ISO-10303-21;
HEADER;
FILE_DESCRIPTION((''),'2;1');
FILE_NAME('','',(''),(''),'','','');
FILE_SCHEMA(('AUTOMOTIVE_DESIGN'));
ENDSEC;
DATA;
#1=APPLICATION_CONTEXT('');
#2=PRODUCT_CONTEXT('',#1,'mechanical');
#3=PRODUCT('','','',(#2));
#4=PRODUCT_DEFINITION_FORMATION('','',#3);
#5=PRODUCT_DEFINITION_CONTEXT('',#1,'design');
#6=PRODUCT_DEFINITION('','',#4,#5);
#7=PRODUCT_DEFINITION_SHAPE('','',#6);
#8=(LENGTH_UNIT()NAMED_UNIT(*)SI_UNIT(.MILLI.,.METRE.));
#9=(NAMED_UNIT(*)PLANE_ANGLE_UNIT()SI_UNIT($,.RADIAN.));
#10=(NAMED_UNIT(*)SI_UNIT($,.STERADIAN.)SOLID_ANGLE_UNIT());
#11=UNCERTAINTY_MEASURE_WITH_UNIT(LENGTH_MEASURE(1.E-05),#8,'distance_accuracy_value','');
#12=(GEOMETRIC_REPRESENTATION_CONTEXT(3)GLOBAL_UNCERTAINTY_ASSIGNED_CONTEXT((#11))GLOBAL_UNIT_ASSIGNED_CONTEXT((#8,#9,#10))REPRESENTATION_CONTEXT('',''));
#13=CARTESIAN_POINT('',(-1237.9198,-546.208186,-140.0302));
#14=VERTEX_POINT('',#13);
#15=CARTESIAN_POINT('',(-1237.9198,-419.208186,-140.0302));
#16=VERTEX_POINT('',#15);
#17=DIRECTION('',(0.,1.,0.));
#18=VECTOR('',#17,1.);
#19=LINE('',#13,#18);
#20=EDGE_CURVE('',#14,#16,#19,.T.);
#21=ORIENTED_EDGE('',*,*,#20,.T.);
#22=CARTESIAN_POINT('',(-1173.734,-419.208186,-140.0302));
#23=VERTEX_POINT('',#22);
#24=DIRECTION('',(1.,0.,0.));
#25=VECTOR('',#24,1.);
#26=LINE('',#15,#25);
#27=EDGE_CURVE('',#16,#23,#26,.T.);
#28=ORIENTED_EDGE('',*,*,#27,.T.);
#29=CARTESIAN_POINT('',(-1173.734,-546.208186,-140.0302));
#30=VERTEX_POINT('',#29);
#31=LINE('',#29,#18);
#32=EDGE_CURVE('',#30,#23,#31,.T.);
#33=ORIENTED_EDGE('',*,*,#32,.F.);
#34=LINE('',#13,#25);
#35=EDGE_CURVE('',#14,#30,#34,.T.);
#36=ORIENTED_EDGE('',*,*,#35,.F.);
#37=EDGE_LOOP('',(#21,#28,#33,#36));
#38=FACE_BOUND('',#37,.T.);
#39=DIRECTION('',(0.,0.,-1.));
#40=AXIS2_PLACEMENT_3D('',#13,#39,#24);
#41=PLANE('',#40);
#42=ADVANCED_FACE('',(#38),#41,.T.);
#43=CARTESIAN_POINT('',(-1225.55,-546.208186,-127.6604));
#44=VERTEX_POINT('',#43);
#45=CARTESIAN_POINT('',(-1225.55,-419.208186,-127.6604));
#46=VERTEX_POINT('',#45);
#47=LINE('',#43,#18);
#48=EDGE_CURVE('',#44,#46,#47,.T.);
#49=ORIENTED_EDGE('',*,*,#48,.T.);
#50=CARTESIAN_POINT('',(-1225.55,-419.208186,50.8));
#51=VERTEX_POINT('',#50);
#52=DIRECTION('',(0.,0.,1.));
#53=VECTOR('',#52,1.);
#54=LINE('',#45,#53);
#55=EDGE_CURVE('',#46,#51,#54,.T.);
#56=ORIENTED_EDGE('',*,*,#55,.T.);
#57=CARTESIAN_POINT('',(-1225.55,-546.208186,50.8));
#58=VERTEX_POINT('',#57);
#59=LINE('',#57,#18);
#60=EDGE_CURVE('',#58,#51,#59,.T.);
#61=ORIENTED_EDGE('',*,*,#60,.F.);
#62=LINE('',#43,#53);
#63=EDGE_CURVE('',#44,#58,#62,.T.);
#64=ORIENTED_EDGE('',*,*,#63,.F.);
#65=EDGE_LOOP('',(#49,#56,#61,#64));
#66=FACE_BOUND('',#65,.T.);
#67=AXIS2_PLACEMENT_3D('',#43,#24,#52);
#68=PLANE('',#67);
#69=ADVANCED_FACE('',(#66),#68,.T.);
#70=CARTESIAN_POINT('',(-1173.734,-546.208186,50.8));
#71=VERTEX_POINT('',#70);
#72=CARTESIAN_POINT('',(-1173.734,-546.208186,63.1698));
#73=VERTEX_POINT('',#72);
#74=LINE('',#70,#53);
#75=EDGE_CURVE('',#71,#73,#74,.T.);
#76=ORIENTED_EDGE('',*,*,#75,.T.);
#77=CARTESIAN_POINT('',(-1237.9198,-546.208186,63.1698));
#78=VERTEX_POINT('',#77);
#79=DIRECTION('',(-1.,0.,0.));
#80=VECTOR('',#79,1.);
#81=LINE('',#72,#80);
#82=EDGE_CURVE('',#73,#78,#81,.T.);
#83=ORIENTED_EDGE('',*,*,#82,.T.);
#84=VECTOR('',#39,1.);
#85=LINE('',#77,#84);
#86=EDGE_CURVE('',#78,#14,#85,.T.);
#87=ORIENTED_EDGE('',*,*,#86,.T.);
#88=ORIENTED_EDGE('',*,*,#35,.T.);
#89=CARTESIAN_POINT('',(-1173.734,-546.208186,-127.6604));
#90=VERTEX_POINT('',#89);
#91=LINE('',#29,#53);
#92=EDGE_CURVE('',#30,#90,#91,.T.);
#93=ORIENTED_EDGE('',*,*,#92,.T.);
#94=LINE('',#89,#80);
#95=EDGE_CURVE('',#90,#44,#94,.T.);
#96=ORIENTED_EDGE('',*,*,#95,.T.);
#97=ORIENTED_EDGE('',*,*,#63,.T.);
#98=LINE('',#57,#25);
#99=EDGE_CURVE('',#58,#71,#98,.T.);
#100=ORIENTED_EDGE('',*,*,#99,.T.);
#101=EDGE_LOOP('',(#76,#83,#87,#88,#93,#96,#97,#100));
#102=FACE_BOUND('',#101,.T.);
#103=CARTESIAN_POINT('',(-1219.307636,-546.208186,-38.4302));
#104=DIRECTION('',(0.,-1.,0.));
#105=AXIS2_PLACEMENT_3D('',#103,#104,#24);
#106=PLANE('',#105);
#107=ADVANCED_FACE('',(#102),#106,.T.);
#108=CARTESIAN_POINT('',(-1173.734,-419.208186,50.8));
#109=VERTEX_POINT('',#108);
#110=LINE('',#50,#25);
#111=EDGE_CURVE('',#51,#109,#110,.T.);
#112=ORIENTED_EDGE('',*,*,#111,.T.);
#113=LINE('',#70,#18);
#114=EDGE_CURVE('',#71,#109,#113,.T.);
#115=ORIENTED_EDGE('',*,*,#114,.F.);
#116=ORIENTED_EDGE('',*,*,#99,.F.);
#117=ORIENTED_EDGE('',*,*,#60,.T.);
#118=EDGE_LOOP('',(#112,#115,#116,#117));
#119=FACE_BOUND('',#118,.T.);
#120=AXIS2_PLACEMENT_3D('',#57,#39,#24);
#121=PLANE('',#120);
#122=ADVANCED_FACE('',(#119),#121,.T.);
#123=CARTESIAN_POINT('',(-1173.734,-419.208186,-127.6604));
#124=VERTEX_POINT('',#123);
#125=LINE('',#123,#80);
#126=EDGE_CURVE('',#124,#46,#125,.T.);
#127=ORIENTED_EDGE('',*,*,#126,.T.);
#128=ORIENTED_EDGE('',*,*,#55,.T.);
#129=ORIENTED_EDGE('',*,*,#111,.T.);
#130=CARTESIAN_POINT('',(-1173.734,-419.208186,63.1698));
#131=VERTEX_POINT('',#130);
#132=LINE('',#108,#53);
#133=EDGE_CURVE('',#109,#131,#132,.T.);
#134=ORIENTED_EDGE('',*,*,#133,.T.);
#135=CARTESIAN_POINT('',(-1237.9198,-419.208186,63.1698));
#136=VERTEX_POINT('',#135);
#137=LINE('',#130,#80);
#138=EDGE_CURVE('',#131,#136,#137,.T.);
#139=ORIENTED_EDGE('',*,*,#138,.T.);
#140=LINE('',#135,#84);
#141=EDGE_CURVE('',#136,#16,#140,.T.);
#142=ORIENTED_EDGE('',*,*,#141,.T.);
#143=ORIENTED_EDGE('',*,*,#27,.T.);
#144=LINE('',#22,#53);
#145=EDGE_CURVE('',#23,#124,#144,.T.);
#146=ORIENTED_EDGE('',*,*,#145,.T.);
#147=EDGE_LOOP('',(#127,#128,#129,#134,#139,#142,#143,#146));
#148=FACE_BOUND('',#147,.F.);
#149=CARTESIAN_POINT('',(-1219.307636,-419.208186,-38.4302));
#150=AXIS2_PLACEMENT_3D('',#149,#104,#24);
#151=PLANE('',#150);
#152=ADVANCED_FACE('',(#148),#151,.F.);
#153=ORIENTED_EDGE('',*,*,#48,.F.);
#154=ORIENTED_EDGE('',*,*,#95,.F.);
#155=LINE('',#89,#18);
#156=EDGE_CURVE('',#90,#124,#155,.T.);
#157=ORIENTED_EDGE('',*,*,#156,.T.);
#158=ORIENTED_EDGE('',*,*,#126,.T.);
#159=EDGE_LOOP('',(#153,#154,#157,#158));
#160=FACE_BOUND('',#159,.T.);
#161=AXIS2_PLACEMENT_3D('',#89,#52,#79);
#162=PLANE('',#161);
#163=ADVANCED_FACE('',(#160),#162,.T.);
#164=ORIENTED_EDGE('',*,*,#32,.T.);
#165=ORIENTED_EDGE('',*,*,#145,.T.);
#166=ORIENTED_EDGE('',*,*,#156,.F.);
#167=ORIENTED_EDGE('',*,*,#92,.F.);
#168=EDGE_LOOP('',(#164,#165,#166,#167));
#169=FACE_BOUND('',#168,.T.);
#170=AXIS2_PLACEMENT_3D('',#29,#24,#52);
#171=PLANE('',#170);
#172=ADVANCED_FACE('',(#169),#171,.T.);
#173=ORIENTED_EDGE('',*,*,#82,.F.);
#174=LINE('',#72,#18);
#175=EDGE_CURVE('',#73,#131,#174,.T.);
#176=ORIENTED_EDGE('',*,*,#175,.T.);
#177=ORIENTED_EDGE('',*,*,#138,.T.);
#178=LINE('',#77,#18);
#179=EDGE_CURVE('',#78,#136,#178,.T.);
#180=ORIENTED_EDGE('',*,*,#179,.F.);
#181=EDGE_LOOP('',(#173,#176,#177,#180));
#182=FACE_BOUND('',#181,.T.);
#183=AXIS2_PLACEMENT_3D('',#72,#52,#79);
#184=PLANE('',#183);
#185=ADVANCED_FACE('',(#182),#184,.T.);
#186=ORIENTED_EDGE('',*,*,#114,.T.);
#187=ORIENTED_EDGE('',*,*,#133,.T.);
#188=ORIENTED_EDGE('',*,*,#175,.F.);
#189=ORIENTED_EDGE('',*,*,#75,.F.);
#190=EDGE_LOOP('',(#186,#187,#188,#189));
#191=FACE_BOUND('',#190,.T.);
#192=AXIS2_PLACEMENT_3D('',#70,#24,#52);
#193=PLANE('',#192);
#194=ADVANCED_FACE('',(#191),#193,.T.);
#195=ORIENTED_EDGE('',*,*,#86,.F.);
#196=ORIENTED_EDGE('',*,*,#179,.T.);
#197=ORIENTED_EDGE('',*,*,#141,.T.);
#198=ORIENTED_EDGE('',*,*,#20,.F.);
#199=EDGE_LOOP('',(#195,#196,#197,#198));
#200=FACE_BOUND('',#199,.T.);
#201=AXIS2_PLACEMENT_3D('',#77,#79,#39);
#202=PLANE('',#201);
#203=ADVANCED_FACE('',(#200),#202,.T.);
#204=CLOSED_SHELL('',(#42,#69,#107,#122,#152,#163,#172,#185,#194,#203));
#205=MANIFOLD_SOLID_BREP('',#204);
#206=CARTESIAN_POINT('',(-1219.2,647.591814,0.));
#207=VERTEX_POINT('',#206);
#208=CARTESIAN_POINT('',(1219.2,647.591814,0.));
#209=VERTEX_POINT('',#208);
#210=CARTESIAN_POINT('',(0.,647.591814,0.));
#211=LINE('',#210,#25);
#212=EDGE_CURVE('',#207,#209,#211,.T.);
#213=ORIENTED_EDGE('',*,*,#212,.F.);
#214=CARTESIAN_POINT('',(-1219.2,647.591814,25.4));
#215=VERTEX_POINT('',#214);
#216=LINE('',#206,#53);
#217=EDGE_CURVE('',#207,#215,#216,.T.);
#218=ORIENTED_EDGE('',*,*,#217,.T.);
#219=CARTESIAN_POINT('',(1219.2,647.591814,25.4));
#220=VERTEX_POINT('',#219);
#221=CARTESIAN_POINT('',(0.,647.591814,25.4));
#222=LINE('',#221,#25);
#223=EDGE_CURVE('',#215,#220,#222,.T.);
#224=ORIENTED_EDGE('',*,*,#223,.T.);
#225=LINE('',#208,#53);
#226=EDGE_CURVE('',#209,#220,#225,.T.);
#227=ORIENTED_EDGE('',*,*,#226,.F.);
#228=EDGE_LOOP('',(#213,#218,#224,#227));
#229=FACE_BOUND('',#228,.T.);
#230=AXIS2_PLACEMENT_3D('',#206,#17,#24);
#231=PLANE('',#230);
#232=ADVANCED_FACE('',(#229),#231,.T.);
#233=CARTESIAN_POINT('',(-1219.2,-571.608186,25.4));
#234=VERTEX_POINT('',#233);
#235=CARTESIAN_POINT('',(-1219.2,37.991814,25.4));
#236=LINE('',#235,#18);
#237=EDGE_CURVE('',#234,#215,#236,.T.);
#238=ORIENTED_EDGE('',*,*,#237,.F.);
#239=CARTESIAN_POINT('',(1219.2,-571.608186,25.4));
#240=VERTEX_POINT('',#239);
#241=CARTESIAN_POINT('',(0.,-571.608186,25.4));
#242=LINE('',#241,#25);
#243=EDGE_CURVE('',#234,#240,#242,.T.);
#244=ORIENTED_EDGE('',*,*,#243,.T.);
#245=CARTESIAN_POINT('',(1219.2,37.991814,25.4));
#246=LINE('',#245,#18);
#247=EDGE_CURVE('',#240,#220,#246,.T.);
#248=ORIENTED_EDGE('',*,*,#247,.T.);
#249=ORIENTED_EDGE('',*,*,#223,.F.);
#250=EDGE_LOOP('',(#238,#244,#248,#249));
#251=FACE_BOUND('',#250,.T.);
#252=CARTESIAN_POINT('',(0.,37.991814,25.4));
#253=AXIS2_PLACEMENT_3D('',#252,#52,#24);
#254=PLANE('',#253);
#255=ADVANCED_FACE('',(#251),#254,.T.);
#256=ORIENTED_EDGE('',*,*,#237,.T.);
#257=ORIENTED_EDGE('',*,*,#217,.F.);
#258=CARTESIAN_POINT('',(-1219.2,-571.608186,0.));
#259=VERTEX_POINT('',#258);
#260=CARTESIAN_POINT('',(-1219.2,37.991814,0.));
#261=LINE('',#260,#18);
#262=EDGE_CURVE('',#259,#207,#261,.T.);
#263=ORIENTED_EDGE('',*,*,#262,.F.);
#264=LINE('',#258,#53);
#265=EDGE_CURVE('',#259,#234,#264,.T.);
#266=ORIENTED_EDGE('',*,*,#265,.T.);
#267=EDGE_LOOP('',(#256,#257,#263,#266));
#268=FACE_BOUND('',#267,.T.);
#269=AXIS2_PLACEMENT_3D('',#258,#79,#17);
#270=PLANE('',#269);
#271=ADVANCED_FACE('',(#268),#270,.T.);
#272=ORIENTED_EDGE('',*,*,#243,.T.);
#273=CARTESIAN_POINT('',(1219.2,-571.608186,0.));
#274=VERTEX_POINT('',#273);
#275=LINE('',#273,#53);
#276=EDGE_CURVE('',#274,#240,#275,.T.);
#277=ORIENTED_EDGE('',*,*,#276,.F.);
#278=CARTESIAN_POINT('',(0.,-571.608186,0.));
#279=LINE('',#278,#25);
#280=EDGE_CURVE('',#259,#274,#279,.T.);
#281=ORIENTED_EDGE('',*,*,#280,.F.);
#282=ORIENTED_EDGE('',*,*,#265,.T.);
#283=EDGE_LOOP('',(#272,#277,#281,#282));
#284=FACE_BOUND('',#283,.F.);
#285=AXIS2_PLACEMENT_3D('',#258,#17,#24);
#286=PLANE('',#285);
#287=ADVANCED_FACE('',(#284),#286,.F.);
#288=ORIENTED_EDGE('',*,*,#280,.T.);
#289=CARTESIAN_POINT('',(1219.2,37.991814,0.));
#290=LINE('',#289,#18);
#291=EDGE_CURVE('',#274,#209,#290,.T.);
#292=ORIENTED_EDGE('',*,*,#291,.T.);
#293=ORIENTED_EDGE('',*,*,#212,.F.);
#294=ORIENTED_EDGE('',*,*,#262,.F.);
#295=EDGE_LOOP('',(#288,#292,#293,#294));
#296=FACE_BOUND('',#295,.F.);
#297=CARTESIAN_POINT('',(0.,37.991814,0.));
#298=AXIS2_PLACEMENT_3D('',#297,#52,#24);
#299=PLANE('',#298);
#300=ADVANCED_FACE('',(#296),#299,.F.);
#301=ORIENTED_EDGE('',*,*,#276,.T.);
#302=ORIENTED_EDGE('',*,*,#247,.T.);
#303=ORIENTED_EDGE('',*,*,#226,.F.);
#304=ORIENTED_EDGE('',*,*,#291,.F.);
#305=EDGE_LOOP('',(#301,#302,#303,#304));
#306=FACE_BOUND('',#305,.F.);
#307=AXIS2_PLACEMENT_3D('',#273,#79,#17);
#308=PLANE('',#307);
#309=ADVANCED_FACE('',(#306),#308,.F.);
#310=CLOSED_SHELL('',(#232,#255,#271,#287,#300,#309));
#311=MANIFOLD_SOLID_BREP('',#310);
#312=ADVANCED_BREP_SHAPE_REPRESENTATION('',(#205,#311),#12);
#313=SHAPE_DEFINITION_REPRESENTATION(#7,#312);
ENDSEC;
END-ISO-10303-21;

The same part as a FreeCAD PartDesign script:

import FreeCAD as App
import Part
import Sketcher
Q = App.Units.Quantity


def add_polygon(sketch, points):
    """Adds a closed chain of lines whose ends are joined by coincident constraints."""
    first, n = sketch.GeometryCount, len(points)
    for a, b in zip(points, points[1:] + points[:1]):
        sketch.addGeometry(Part.LineSegment(App.Vector(*a, 0), App.Vector(*b, 0)), False)
    for i in range(n):
        sketch.addConstraint(Sketcher.Constraint("Coincident", first + i, 2, first + (i + 1) % n, 1))

doc = App.newDocument("Part")
params = doc.addObject("Spreadsheet::Sheet", "Params")
for row, (alias, value) in enumerate([
    ("sketch1_width", "96 in"),
    ("sketch1_height", "48 in"),
    ("pad1_length", "1 in"),
    ("sketch2_height", "8 in"),
    ("sketch2_width", "2.04 in"),
    ("sketch2_width2", "2.527 in"),
    ("sketch2_height2", "0.487 in"),
    ("pad2_length", "5 in"),
], start=1):
    params.set(f"A{row}", alias)
    params.set(f"B{row}", "=" + value)
    params.setAlias(f"B{row}", alias)

body = doc.addObject("PartDesign::Body", "Body")

# Sketch on XY plane
sketch1 = doc.addObject("Sketcher::SketchObject", "Sketch")
body.addObject(sketch1)
sketch1.AttachmentSupport = (doc.XY_Plane, [""])
sketch1.MapMode = "FlatFace"
add_polygon(sketch1, [(-1219, 648), (-1219, -572), (1219, -572), (1219, 648)])  # lines 0-3
sketch1.addConstraint(Sketcher.Constraint("Vertical", 0))
sketch1.addConstraint(Sketcher.Constraint("Horizontal", 1))
sketch1.addConstraint(Sketcher.Constraint("Vertical", 2))
sketch1.addConstraint(Sketcher.Constraint("Horizontal", 3))
sketch1.addConstraint(Sketcher.Constraint("DistanceX", 1, 1, 1, 2, Q("96 in")))
sketch1.addConstraint(Sketcher.Constraint("DistanceY", 0, 2, 0, 1, Q("48 in")))
sketch1.addConstraint(Sketcher.Constraint("DistanceX", 0, 2, -1, 1, Q("48 in")))
sketch1.addConstraint(Sketcher.Constraint("DistanceY", 0, 2, -1, 1, Q("571.608186 mm")))
sketch1.setExpression("Constraints[8]", "Params.sketch1_width")
sketch1.setExpression("Constraints[9]", "Params.sketch1_height")
pad1 = doc.addObject("PartDesign::Pad", "Pad")
body.addObject(pad1)
pad1.Profile = sketch1
pad1.setExpression("Length", "Params.pad1_length")
body2 = doc.addObject("PartDesign::Body", "Body001")

# Sketch on XZ plane
sketch2 = doc.addObject("Sketcher::SketchObject", "Sketch001")
body2.addObject(sketch2)
sketch2.AttachmentSupport = (doc.getObject("XZ_Plane001"), [""])
sketch2.MapMode = "FlatFace"
sketch2.AttachmentOffset = App.Placement(App.Vector(0, 0, 546.208186), App.Rotation())
add_polygon(sketch2, [(-1238, 63), (-1238, -140), (-1174, -140), (-1174, -128), (-1226, -128), (-1226, 51), (-1174, 51), (-1174, 63)])  # lines 0-7
sketch2.addConstraint(Sketcher.Constraint("Vertical", 0))
sketch2.addConstraint(Sketcher.Constraint("Horizontal", 1))
sketch2.addConstraint(Sketcher.Constraint("Vertical", 2))
sketch2.addConstraint(Sketcher.Constraint("Horizontal", 3))
sketch2.addConstraint(Sketcher.Constraint("Vertical", 4))
sketch2.addConstraint(Sketcher.Constraint("Horizontal", 5))
sketch2.addConstraint(Sketcher.Constraint("Vertical", 6))
sketch2.addConstraint(Sketcher.Constraint("Horizontal", 7))
sketch2.addConstraint(Sketcher.Constraint("Vertical", 2, 2, 5, 2))
sketch2.addConstraint(Sketcher.Constraint("Equal", 2, 6))
sketch2.addConstraint(Sketcher.Constraint("DistanceY", 0, 2, 0, 1, Q("8 in")))
sketch2.addConstraint(Sketcher.Constraint("DistanceY", -1, 1, 4, 2, Q("2 in")))
sketch2.addConstraint(Sketcher.Constraint("DistanceX", 3, 2, 3, 1, Q("2.04 in")))
sketch2.addConstraint(Sketcher.Constraint("DistanceX", 1, 1, 1, 2, Q("2.527 in")))
sketch2.addConstraint(Sketcher.Constraint("DistanceY", 2, 1, 2, 2, Q("0.487 in")))
sketch2.addConstraint(Sketcher.Constraint("DistanceX", 1, 2, -1, 1, Q("46.21 in")))
sketch2.setExpression("Constraints[18]", "Params.sketch2_height")
sketch2.setExpression("Constraints[20]", "Params.sketch2_width")
sketch2.setExpression("Constraints[21]", "Params.sketch2_width2")
sketch2.setExpression("Constraints[22]", "Params.sketch2_height2")
pad2 = doc.addObject("PartDesign::Pad", "Pad001")
body2.addObject(pad2)
pad2.Profile = sketch2
pad2.setExpression("Length", "Params.pad2_length")
pad2.Reversed = True

doc.recompute()
